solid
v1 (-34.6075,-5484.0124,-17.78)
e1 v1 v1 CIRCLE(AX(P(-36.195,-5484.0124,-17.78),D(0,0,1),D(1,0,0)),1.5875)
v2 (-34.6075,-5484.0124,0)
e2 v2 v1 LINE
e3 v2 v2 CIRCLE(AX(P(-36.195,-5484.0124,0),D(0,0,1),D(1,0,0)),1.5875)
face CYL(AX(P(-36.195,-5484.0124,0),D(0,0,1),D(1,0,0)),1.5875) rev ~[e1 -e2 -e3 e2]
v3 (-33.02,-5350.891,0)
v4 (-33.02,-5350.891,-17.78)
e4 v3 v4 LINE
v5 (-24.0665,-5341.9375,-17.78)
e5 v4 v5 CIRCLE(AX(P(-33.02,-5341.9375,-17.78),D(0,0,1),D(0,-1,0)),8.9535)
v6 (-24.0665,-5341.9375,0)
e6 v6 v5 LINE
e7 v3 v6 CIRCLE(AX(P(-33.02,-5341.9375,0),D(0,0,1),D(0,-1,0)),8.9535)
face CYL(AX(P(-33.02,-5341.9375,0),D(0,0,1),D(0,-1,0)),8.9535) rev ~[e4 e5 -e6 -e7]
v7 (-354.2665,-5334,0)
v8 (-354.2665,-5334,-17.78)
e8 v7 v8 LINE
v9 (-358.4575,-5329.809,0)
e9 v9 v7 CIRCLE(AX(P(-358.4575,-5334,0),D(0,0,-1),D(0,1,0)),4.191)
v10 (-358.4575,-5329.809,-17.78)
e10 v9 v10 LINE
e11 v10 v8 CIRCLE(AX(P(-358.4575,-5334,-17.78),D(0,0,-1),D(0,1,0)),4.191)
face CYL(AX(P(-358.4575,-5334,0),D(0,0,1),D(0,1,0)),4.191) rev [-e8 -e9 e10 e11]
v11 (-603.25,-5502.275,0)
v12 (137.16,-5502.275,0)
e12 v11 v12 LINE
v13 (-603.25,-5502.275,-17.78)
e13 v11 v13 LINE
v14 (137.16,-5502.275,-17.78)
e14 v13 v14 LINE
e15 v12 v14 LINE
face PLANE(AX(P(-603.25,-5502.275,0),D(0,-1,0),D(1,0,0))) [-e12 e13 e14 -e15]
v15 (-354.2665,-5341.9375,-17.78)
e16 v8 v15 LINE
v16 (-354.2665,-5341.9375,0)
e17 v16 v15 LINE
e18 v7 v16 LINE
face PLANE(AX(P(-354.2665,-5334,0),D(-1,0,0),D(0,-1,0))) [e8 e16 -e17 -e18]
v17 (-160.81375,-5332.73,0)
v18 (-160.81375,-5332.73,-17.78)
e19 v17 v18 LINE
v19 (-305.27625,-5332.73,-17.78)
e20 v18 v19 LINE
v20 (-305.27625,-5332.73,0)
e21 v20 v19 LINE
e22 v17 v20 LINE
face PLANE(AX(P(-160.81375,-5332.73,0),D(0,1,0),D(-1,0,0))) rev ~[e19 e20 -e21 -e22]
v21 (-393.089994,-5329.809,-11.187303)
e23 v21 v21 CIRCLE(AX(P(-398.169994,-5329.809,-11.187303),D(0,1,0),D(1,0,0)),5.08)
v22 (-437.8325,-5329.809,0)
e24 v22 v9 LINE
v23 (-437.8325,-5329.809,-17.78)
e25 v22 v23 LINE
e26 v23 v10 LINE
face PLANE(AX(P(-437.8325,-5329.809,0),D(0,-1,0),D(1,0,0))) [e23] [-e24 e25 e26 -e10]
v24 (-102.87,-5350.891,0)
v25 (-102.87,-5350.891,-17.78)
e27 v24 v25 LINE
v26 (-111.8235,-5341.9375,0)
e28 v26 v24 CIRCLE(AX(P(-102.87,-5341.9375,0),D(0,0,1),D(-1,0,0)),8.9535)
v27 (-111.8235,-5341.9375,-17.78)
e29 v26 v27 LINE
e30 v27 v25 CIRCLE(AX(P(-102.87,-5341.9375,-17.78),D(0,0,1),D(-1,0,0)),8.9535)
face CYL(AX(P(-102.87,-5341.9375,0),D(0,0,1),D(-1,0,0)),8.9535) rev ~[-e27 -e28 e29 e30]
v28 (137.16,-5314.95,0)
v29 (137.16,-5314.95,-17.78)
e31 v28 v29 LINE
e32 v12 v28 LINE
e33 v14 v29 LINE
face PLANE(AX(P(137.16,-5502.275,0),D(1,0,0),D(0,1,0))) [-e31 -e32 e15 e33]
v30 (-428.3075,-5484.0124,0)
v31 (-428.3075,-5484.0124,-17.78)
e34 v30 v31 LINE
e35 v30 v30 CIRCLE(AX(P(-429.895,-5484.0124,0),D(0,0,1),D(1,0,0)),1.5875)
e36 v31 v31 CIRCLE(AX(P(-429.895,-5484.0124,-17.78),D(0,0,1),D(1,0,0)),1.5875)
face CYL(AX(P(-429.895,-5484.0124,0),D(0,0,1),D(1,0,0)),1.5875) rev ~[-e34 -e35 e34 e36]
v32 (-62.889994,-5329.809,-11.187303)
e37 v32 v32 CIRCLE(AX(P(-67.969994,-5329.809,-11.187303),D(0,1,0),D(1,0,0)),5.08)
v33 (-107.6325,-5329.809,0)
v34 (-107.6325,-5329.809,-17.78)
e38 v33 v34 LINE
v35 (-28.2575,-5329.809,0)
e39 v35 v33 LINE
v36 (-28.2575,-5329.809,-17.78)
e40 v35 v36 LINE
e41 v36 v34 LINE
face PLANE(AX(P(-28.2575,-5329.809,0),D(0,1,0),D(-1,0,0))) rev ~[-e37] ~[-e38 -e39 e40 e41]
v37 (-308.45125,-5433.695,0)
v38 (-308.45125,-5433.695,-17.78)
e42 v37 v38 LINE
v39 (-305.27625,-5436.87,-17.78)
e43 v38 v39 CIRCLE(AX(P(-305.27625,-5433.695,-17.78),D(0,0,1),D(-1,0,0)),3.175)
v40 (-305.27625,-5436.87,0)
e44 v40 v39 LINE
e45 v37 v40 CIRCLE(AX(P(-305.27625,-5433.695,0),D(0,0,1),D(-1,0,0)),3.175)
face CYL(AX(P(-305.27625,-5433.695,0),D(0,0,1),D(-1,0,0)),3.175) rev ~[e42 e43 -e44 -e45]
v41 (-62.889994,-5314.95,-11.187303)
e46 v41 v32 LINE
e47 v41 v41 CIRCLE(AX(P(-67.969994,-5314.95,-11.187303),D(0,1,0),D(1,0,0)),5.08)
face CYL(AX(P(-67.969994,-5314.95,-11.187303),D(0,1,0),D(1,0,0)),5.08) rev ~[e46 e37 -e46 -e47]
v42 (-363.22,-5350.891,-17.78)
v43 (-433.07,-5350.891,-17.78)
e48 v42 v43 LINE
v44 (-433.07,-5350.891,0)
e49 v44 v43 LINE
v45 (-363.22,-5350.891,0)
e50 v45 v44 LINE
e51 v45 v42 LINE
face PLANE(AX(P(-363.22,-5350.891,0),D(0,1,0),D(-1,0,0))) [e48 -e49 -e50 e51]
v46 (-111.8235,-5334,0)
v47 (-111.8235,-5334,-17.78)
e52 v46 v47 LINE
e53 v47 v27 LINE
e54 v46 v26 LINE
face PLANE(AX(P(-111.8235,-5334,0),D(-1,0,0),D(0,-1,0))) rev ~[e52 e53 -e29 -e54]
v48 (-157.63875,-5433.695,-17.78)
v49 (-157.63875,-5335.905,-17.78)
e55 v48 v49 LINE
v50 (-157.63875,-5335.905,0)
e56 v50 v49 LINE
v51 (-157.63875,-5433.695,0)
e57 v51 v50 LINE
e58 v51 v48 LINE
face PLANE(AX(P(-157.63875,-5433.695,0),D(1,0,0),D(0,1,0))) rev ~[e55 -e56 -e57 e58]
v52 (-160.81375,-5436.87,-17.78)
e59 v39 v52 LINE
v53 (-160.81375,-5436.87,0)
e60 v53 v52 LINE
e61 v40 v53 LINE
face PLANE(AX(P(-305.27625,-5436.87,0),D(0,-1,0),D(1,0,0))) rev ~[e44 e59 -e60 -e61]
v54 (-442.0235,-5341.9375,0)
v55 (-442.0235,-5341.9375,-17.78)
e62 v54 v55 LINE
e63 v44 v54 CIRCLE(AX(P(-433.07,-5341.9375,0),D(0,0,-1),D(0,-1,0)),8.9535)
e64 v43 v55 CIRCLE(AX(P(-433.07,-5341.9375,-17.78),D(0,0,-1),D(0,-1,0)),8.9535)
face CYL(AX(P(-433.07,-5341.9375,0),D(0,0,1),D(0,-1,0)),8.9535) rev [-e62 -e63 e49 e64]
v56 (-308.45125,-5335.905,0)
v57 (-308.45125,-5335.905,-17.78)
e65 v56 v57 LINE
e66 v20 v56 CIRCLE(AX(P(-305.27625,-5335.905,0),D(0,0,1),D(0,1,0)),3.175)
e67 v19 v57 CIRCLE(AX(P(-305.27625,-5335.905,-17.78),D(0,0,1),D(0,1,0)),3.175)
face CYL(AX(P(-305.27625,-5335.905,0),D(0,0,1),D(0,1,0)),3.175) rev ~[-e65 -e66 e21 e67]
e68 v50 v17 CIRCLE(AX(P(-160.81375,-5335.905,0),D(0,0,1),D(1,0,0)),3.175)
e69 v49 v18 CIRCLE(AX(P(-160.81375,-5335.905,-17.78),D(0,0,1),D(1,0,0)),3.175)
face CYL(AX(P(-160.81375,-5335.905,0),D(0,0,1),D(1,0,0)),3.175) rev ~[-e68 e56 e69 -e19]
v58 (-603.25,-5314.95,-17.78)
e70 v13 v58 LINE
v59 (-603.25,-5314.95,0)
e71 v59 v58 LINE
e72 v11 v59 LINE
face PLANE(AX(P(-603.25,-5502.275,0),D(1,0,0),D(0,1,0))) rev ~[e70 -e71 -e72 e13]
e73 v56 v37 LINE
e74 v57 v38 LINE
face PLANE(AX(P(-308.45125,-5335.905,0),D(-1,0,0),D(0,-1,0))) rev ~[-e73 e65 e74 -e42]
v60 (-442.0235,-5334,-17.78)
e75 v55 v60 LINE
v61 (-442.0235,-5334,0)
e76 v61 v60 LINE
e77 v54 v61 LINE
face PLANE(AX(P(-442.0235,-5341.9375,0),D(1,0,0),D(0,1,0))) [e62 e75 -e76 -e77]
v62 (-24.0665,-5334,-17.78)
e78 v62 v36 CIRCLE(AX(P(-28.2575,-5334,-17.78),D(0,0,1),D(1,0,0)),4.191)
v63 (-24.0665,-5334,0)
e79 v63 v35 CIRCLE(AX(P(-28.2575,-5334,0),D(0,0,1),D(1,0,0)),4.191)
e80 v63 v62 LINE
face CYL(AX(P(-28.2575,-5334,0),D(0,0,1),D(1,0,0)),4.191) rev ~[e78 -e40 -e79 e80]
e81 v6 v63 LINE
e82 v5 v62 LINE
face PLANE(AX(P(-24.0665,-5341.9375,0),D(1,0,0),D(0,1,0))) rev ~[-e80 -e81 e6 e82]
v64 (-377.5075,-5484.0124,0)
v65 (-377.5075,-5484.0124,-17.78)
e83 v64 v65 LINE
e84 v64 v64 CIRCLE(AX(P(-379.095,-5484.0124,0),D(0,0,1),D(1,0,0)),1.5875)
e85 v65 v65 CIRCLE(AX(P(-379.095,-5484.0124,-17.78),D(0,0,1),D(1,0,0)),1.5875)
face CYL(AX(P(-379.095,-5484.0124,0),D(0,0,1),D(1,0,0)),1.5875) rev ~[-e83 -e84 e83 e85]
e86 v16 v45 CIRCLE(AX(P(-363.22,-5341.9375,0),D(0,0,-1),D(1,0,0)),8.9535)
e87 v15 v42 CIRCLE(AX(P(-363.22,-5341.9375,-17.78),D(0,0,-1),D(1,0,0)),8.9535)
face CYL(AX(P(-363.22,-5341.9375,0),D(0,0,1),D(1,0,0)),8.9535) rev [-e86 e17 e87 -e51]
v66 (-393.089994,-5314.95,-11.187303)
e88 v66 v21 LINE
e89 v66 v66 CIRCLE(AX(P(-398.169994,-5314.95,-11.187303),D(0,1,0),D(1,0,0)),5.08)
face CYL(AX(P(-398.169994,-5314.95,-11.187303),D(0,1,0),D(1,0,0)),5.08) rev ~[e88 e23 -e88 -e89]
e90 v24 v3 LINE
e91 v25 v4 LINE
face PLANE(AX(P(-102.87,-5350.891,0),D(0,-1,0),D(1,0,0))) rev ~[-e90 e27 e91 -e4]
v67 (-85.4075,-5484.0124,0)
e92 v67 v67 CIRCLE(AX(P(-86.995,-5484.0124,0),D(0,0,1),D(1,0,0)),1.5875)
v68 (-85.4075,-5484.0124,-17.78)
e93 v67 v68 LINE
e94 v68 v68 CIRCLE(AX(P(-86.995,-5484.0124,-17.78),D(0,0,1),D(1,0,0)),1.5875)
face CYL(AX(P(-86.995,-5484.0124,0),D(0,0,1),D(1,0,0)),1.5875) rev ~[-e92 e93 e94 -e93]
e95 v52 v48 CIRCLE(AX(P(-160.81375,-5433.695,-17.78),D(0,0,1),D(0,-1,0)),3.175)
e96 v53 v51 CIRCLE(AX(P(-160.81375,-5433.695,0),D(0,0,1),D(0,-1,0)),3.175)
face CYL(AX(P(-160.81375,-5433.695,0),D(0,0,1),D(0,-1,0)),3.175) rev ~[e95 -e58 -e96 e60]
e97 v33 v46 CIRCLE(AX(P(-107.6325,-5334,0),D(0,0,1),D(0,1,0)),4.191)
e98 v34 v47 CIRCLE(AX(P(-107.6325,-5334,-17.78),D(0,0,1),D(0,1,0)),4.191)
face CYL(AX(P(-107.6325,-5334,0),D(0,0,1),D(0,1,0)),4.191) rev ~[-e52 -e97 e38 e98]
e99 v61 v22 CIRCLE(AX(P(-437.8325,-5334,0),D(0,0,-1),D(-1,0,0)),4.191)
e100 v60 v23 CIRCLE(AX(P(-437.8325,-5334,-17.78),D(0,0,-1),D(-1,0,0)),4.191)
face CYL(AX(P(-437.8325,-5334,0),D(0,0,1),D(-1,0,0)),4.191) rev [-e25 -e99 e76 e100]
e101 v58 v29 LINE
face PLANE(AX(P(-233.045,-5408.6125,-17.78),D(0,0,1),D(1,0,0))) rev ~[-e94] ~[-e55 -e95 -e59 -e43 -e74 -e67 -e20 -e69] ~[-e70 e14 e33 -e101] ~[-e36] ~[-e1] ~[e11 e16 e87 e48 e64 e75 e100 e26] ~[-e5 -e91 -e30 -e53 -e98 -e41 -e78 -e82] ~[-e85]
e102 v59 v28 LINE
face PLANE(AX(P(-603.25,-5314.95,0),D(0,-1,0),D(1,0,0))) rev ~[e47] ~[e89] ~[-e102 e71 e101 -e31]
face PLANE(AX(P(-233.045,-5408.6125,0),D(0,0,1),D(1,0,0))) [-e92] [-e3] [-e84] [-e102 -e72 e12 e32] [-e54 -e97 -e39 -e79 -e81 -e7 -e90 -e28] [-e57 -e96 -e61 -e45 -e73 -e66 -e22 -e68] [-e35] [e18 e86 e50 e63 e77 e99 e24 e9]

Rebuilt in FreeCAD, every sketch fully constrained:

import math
import FreeCAD as App
import Part
import Sketcher

V = App.Vector
Q = App.Units.Quantity


def add_polygon(sketch, points):
    """Adds a closed chain of lines whose ends are joined by coincident constraints."""
    first, n = sketch.GeometryCount, len(points)
    for a, b in zip(points, points[1:] + points[:1]):
        sketch.addGeometry(Part.LineSegment(App.Vector(*a, 0), App.Vector(*b, 0)), False)
    for i in range(n):
        sketch.addConstraint(Sketcher.Constraint("Coincident", first + i, 2, first + (i + 1) % n, 1))

doc = App.newDocument("Part")
body = doc.addObject("PartDesign::Body", "Body")

sketch1 = body.newObject("Sketcher::SketchObject", "Sketch")
sketch1.AttachmentSupport = (doc.getObject("XY_Plane"), [""])
sketch1.MapMode = "FlatFace"
add_polygon(sketch1, [(-603.25, -5314.95), (-603.25, -5502.275), (137.16, -5502.275), (137.16, -5314.95)])
sketch1.addConstraint([
    Sketcher.Constraint("Vertical", 0),
    Sketcher.Constraint("Horizontal", 1),
    Sketcher.Constraint("Vertical", 2),
    Sketcher.Constraint("Horizontal", 3),
    Sketcher.Constraint("DistanceX", 1, 1, 1, 2, Q("29.15 in")),
    Sketcher.Constraint("DistanceX", -1, 1, 1, 2, Q("5.4 in")),
    Sketcher.Constraint("DistanceY", 0, 2, 0, 1, Q("7.375 in")),
    Sketcher.Constraint("DistanceY", 2, 2, -1, 1, Q("209.25 in")),
])
pad1 = body.newObject("PartDesign::Pad", "Pad")
pad1.Profile = sketch1
pad1.Length = Q("0.7 in")
pad1.Reversed = True

sketch2 = body.newObject("Sketcher::SketchObject", "Sketch001")
sketch2.AttachmentSupport = (doc.getObject("XY_Plane"), [""])
sketch2.MapMode = "FlatFace"
sketch2.addGeometry([
    Part.Circle(V(-429.895, -5484.0124, 0), V(0, 0, 1), 1.5875),
    Part.Circle(V(-379.095, -5484.0124, 0), V(0, 0, 1), 1.5875),
    Part.Circle(V(-86.995, -5484.0124, 0), V(0, 0, 1), 1.5875),
    Part.Circle(V(-36.195, -5484.0124, 0), V(0, 0, 1), 1.5875),
    Part.LineSegment(V(-308.45125, -5335.905, 0), V(-308.45125, -5433.695, 0)),
    Part.ArcOfCircle(Part.Circle(V(-305.27625, -5433.695, 0), V(0, 0, 1), 3.175), math.radians(-180), math.radians(-90)),
    Part.LineSegment(V(-305.27625, -5436.87, 0), V(-160.81375, -5436.87, 0)),
    Part.ArcOfCircle(Part.Circle(V(-160.81375, -5433.695, 0), V(0, 0, 1), 3.175), math.radians(-90), math.radians(0)),
    Part.LineSegment(V(-157.63875, -5433.695, 0), V(-157.63875, -5335.905, 0)),
    Part.ArcOfCircle(Part.Circle(V(-160.81375, -5335.905, 0), V(0, 0, 1), 3.175), math.radians(0), math.radians(90)),
    Part.LineSegment(V(-160.81375, -5332.73, 0), V(-305.27625, -5332.73, 0)),
    Part.ArcOfCircle(Part.Circle(V(-305.27625, -5335.905, 0), V(0, 0, 1), 3.175), math.radians(90), math.radians(180)),
    Part.LineSegment(V(-354.2665, -5341.9375, 0), V(-354.2665, -5334, 0)),
    Part.ArcOfCircle(Part.Circle(V(-358.4575, -5334, 0), V(0, 0, 1), 4.191), math.radians(0), math.radians(90)),
    Part.LineSegment(V(-358.4575, -5329.809, 0), V(-437.8325, -5329.809, 0)),
    Part.ArcOfCircle(Part.Circle(V(-437.8325, -5334, 0), V(0, 0, 1), 4.191), math.radians(90), math.radians(180)),
    Part.LineSegment(V(-442.0235, -5334, 0), V(-442.0235, -5341.9375, 0)),
    Part.ArcOfCircle(Part.Circle(V(-433.07, -5341.9375, 0), V(0, 0, 1), 8.9535), math.radians(-180), math.radians(-90)),
    Part.LineSegment(V(-433.07, -5350.891, 0), V(-363.22, -5350.891, 0)),
    Part.ArcOfCircle(Part.Circle(V(-363.22, -5341.9375, 0), V(0, 0, 1), 8.9535), math.radians(-90), math.radians(0)),
    Part.LineSegment(V(-102.87, -5350.891, 0), V(-33.02, -5350.891, 0)),
    Part.ArcOfCircle(Part.Circle(V(-33.02, -5341.9375, 0), V(0, 0, 1), 8.9535), math.radians(-90), math.radians(0)),
    Part.LineSegment(V(-24.0665, -5341.9375, 0), V(-24.0665, -5334, 0)),
    Part.ArcOfCircle(Part.Circle(V(-28.2575, -5334, 0), V(0, 0, 1), 4.191), math.radians(0), math.radians(90)),
    Part.LineSegment(V(-28.2575, -5329.809, 0), V(-107.6325, -5329.809, 0)),
    Part.ArcOfCircle(Part.Circle(V(-107.6325, -5334, 0), V(0, 0, 1), 4.191), math.radians(90), math.radians(180)),
    Part.LineSegment(V(-111.8235, -5334, 0), V(-111.8235, -5341.9375, 0)),
    Part.ArcOfCircle(Part.Circle(V(-102.87, -5341.9375, 0), V(0, 0, 1), 8.9535), math.radians(-180), math.radians(-90)),
], False)
sketch2.addConstraint([
    Sketcher.Constraint("Tangent", 4, 2, 5, 1),
    Sketcher.Constraint("Tangent", 5, 2, 6, 1),
    Sketcher.Constraint("Tangent", 6, 2, 7, 1),
    Sketcher.Constraint("Tangent", 7, 2, 8, 1),
    Sketcher.Constraint("Tangent", 8, 2, 9, 1),
    Sketcher.Constraint("Tangent", 9, 2, 10, 1),
    Sketcher.Constraint("Tangent", 10, 2, 11, 1),
    Sketcher.Constraint("Tangent", 11, 2, 4, 1),
    Sketcher.Constraint("Tangent", 12, 2, 13, 1),
    Sketcher.Constraint("Tangent", 13, 2, 14, 1),
    Sketcher.Constraint("Tangent", 14, 2, 15, 1),
    Sketcher.Constraint("Tangent", 15, 2, 16, 1),
    Sketcher.Constraint("Tangent", 16, 2, 17, 1),
    Sketcher.Constraint("Tangent", 17, 2, 18, 1),
    Sketcher.Constraint("Tangent", 18, 2, 19, 1),
    Sketcher.Constraint("Tangent", 19, 2, 12, 1),
    Sketcher.Constraint("Tangent", 20, 2, 21, 1),
    Sketcher.Constraint("Tangent", 21, 2, 22, 1),
    Sketcher.Constraint("Tangent", 22, 2, 23, 1),
    Sketcher.Constraint("Tangent", 23, 2, 24, 1),
    Sketcher.Constraint("Tangent", 24, 2, 25, 1),
    Sketcher.Constraint("Tangent", 25, 2, 26, 1),
    Sketcher.Constraint("Tangent", 26, 2, 27, 1),
    Sketcher.Constraint("Tangent", 27, 2, 20, 1),
    Sketcher.Constraint("Vertical", 4),
    Sketcher.Constraint("Horizontal", 6),
    Sketcher.Constraint("Vertical", 8),
    Sketcher.Constraint("Horizontal", 10),
    Sketcher.Constraint("Vertical", 12),
    Sketcher.Constraint("Horizontal", 14),
    Sketcher.Constraint("Vertical", 16),
    Sketcher.Constraint("Horizontal", 18),
    Sketcher.Constraint("Horizontal", 20),
    Sketcher.Constraint("Vertical", 22),
    Sketcher.Constraint("Horizontal", 24),
    Sketcher.Constraint("Vertical", 26),
    Sketcher.Constraint("Equal", 0, 1),
    Sketcher.Constraint("Equal", 1, 2),
    Sketcher.Constraint("Equal", 2, 3),
    Sketcher.Constraint("Equal", 5, 7),
    Sketcher.Constraint("Equal", 7, 9),
    Sketcher.Constraint("Equal", 9, 11),
    Sketcher.Constraint("Equal", 13, 15),
    Sketcher.Constraint("Equal", 17, 19),
    Sketcher.Constraint("Equal", 19, 21),
    Sketcher.Constraint("Equal", 15, 23),
    Sketcher.Constraint("Equal", 23, 25),
    Sketcher.Constraint("Equal", 21, 27),
    Sketcher.Constraint("Horizontal", 0, 3, 1, 3),
    Sketcher.Constraint("Horizontal", 1, 3, 2, 3),
    Sketcher.Constraint("Horizontal", 2, 3, 3, 3),
    Sketcher.Constraint("Horizontal", 19, 3, 21, 3),
    Sketcher.Constraint("Horizontal", 15, 3, 23, 3),
    Sketcher.Constraint("Equal", 18, 20),
    Sketcher.Constraint("Diameter", 0, Q("0.125 in")),
    Sketcher.Constraint("DistanceY", 13, 3, -1, 1, Q("210 in")),
    Sketcher.Constraint("Radius", 5, Q("0.125 in")),
    Sketcher.Constraint("Radius", 13, Q("0.165 in")),
    Sketcher.Constraint("DistanceX", 0, 3, 1, 3, Q("2 in")),
    Sketcher.Constraint("DistanceX", 2, 3, 3, 3, Q("2 in")),
    Sketcher.Constraint("DistanceX", 18, 1, 18, 2, Q("2.75 in")),
    Sketcher.Constraint("DistanceY", 4, 2, 4, 1, Q("3.85 in")),
    Sketcher.Constraint("DistanceX", 19, 3, -1, 1, Q("14.3 in")),
    Sketcher.Constraint("DistanceX", 21, 3, -1, 1, Q("1.3 in")),
    Sketcher.Constraint("Radius", 17, Q("0.3525 in")),
    Sketcher.Constraint("DistanceX", 1, 3, 2, 3, Q("11.5 in")),
    Sketcher.Constraint("DistanceX", 6, 1, 6, 2, Q("5.6875 in")),
    Sketcher.Constraint("DistanceY", 12, 1, 12, 2, Q("0.3125 in")),
    Sketcher.Constraint("DistanceY", 5, 2, -1, 1, Q("214.05 in")),
    Sketcher.Constraint("DistanceX", 0, 3, -1, 1, Q("16.925 in")),
    Sketcher.Constraint("DistanceY", 0, 3, -1, 1, Q("215.906 in")),
    Sketcher.Constraint("DistanceX", 1, 3, 5, 3, Q("2.90625 in")),
])
pocket1 = body.newObject("PartDesign::Pocket", "Pocket")
pocket1.Profile = sketch2
pocket1.Length = Q("0.7 in")

sketch3 = body.newObject("Sketcher::SketchObject", "Sketch002")
sketch3.AttachmentSupport = (doc.getObject("XZ_Plane"), [""])
sketch3.MapMode = "FlatFace"
sketch3.AttachmentOffset = App.Placement(V(0, 0, 209.25 * 25.4), App.Rotation())
sketch3.addGeometry([
    Part.Circle(V(-67.969994, -11.187303, 0), V(0, 0, 1), 5.08),
    Part.Circle(V(-398.169994, -11.187303, 0), V(0, 0, 1), 5.08),
], False)
sketch3.addConstraint([
    Sketcher.Constraint("Equal", 0, 1),
    Sketcher.Constraint("Horizontal", 0, 3, 1, 3),
    Sketcher.Constraint("Diameter", 0, Q("0.4 in")),
    Sketcher.Constraint("DistanceX", 1, 3, 0, 3, Q("13 in")),
    Sketcher.Constraint("DistanceX", 0, 3, -1, 1, Q("67.969994 mm")),
    Sketcher.Constraint("DistanceY", 0, 3, -1, 1, Q("11.187303 mm")),
])
pocket2 = body.newObject("PartDesign::Pocket", "Pocket001")
pocket2.Profile = sketch3
pocket2.Length = Q("0.585 in")
pocket2.Reversed = True

doc.recompute()
